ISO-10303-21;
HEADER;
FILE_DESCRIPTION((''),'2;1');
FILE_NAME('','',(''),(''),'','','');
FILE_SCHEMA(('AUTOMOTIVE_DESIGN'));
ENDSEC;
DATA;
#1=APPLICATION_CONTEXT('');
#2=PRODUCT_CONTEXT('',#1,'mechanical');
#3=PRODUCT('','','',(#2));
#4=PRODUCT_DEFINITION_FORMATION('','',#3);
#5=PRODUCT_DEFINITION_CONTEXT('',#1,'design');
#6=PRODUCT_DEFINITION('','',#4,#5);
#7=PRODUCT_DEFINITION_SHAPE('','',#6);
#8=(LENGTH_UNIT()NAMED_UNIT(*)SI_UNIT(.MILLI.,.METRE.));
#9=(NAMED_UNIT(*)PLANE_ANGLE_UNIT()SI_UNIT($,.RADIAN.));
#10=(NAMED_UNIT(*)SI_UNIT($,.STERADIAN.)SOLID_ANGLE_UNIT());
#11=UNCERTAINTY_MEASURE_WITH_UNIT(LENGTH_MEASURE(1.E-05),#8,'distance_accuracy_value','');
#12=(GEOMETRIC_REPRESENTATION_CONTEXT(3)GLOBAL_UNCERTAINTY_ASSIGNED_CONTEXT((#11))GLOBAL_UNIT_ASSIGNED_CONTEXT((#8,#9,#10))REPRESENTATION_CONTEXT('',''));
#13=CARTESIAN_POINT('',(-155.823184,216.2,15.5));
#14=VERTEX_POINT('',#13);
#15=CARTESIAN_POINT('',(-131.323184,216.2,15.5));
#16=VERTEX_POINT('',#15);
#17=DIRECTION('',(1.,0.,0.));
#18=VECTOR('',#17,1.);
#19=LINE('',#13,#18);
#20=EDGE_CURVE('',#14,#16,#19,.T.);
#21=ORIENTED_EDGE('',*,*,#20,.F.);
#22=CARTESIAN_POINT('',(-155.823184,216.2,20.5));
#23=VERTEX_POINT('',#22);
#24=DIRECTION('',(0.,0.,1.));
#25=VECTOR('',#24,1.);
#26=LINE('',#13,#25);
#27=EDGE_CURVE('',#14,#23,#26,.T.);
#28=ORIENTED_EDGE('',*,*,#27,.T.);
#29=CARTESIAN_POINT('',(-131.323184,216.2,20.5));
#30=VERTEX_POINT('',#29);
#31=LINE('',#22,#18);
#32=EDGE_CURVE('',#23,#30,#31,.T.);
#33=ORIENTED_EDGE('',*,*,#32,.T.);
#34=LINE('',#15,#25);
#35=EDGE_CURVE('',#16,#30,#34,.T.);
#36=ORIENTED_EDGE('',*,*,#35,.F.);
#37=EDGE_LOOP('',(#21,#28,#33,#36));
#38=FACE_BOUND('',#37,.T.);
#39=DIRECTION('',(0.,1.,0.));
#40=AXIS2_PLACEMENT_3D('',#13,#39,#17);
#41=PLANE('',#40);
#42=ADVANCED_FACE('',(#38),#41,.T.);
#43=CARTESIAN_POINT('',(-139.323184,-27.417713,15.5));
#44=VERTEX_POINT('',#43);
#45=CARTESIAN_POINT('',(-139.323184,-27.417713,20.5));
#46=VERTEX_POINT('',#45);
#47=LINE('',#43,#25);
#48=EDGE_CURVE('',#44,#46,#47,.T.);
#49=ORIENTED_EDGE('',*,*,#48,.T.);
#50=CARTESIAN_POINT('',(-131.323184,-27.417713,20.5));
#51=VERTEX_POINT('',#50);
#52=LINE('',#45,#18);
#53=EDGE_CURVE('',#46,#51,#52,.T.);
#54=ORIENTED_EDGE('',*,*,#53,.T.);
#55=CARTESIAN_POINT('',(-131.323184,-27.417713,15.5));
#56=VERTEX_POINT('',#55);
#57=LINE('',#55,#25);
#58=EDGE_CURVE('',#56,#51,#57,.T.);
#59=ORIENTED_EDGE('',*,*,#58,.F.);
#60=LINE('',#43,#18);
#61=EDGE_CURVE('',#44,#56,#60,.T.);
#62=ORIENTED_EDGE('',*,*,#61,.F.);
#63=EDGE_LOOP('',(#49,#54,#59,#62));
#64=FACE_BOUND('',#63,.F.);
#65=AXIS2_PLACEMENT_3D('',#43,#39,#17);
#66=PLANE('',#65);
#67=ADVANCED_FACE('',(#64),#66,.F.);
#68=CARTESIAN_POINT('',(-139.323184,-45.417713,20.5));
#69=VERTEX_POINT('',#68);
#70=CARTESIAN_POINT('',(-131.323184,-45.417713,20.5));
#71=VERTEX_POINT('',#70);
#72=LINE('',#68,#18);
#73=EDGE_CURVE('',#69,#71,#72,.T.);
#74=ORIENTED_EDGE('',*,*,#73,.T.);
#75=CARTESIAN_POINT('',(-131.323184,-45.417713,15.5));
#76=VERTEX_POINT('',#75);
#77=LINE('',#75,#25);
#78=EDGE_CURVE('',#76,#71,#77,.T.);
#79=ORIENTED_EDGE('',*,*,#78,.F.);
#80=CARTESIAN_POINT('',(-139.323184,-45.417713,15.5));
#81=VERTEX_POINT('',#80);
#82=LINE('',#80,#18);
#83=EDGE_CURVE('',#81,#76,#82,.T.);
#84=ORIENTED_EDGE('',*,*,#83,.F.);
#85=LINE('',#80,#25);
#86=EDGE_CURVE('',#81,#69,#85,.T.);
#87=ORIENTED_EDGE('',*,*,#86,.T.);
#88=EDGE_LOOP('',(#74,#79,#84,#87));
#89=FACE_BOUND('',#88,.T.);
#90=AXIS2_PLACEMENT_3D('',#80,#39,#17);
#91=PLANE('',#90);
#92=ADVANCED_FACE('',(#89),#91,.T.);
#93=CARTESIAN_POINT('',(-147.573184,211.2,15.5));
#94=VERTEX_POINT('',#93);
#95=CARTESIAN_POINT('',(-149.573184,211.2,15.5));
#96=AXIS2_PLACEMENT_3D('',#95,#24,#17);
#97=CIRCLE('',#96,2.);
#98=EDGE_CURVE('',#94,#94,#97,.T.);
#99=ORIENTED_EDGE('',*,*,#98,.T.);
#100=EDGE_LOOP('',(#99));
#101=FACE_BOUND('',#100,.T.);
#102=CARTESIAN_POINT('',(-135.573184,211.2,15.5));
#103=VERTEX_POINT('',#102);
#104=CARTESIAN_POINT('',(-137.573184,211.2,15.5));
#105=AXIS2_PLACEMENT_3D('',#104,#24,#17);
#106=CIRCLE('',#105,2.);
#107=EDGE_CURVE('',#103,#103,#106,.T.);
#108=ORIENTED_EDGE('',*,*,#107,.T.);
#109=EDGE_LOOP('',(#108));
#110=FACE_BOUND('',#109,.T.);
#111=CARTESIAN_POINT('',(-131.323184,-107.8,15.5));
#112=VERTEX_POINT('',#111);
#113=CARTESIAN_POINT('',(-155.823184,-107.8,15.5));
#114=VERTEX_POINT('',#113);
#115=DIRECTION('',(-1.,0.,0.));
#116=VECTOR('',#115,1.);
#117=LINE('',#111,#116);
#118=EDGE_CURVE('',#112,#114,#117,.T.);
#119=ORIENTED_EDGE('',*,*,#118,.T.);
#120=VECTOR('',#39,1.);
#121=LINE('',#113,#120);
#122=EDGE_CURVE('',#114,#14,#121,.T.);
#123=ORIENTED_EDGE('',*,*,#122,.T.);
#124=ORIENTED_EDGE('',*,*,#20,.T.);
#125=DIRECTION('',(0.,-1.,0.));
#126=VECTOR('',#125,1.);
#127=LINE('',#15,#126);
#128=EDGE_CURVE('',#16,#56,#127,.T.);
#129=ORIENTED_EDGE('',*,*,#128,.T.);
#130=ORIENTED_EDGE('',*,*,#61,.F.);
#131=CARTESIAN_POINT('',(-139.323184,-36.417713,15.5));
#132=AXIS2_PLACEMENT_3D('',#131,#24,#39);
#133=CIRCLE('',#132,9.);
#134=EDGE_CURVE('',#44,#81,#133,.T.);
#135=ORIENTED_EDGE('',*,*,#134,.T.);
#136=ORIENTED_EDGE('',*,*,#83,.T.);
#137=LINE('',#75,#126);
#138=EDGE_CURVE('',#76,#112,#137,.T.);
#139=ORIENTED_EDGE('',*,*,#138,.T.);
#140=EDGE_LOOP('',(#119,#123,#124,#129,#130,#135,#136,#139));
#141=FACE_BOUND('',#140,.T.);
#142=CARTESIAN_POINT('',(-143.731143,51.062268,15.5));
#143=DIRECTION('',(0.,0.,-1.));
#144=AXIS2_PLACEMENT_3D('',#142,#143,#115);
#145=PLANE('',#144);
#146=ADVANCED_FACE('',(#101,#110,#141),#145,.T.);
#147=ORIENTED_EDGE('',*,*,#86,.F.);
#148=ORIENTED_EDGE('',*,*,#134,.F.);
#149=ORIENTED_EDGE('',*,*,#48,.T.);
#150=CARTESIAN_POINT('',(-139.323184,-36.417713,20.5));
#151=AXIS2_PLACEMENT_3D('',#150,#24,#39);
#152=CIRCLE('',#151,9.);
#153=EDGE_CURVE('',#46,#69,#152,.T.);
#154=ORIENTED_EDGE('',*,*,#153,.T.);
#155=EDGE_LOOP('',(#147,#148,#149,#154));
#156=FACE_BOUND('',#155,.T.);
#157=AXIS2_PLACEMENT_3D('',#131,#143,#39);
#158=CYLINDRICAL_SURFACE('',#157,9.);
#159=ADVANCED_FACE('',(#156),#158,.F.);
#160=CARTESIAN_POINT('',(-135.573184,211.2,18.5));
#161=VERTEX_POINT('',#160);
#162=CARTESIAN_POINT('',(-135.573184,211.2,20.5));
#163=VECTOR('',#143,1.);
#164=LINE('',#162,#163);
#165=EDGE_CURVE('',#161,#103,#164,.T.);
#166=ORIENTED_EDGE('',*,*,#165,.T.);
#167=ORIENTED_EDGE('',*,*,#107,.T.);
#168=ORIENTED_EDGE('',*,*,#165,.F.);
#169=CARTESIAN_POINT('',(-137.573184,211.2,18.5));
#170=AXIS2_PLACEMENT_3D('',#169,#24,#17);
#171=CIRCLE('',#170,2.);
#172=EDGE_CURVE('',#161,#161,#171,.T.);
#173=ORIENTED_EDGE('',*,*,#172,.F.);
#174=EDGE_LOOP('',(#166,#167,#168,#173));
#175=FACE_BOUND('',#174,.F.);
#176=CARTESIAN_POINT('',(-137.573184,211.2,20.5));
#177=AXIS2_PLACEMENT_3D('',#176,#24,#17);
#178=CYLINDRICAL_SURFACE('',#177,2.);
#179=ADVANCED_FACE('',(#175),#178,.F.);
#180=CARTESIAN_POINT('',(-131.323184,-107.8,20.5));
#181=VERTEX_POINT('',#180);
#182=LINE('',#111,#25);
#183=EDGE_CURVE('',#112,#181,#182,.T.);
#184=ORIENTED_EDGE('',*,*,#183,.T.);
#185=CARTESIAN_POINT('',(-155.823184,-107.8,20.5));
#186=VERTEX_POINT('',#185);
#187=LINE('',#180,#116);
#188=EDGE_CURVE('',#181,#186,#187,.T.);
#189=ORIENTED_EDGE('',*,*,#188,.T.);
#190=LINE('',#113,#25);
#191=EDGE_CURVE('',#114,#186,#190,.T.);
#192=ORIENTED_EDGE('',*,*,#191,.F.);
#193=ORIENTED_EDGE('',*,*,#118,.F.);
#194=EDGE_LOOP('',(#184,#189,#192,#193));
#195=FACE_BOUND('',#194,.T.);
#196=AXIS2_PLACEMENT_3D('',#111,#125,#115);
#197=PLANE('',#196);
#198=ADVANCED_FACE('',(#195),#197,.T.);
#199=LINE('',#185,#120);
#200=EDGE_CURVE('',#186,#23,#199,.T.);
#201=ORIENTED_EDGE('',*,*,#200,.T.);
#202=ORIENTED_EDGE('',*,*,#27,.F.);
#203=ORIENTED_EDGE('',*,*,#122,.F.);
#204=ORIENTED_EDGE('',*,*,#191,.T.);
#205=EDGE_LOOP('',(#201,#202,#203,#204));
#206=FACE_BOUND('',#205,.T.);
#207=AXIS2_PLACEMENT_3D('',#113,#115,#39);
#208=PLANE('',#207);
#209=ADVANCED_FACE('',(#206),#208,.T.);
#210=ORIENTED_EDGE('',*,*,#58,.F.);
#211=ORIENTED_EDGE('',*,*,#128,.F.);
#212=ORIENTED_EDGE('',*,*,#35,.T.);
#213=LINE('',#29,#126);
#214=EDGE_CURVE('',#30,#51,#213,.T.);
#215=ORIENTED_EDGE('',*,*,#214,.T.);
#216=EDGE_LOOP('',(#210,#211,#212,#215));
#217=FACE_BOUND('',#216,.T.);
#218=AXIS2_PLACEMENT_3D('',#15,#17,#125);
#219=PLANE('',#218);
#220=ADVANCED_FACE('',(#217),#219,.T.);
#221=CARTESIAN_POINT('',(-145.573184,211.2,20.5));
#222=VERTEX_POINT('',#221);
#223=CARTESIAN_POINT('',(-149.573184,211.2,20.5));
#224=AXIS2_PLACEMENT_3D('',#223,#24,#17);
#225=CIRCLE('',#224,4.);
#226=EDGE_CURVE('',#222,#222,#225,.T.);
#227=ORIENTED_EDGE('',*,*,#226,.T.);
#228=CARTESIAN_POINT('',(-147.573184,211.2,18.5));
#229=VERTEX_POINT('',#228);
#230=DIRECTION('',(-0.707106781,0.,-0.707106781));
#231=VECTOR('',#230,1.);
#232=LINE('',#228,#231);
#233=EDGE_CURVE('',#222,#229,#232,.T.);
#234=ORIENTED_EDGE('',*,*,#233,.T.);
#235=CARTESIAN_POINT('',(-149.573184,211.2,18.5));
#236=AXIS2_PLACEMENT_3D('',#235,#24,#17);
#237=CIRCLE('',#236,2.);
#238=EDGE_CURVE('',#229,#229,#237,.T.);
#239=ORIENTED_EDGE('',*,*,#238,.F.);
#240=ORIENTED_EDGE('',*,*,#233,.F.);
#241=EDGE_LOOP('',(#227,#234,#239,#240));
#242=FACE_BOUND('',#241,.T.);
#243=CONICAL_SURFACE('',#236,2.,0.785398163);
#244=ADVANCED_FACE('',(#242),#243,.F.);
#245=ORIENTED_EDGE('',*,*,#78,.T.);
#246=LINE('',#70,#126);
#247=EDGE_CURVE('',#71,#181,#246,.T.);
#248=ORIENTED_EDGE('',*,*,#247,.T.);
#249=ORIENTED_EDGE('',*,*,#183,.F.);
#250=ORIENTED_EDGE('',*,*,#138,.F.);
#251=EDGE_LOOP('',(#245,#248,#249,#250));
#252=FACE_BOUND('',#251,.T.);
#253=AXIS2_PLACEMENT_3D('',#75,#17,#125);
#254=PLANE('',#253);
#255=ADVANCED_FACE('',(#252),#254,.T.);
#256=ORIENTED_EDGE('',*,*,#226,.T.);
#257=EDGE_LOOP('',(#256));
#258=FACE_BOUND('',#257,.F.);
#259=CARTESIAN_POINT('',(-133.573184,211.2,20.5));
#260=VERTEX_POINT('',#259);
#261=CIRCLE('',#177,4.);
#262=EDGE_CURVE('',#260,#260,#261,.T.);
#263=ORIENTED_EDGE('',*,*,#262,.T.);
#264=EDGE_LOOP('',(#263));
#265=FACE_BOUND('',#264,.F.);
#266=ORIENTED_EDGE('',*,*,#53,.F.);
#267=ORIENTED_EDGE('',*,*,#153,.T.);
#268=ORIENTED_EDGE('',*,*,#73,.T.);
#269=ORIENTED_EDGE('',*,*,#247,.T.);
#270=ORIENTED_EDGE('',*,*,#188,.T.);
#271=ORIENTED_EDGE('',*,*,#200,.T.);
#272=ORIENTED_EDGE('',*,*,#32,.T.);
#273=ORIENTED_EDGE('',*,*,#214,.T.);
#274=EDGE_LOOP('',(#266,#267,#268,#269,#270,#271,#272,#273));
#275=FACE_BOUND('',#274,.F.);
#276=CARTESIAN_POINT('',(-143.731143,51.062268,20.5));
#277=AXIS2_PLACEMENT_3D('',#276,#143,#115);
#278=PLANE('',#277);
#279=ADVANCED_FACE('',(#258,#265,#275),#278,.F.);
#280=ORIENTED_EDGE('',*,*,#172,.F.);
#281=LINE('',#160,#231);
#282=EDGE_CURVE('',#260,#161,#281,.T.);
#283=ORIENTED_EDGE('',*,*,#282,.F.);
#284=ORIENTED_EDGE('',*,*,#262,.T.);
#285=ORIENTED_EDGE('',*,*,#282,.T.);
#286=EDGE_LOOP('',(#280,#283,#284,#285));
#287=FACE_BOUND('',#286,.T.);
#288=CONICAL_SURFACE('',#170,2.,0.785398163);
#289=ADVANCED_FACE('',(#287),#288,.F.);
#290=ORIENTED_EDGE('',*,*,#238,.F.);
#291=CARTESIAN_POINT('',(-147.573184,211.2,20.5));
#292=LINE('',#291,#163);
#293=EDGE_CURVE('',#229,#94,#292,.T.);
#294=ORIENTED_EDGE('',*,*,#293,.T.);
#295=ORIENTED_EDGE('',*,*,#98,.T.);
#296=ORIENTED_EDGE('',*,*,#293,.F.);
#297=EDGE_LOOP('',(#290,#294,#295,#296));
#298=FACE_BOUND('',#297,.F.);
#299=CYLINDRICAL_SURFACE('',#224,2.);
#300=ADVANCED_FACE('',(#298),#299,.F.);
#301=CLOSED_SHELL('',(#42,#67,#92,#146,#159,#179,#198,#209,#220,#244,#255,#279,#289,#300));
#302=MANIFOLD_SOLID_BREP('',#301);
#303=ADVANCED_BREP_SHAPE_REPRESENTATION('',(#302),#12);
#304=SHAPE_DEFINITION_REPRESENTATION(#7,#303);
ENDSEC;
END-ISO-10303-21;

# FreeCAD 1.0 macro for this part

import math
import FreeCAD as App
import Part
import Sketcher
Q = App.Units.Quantity


def edges_at(feature, points):
    """Names of the edges that pass closest to the given points."""
    edges = feature.Shape.Edges
    near = lambda p: min(range(len(edges)), key=lambda i: edges[i].distToShape(Part.Vertex(*p))[0])
    return sorted({f"Edge{near(p) + 1}" for p in points})

doc = App.newDocument("Part")
body = doc.addObject("PartDesign::Body", "Body")

sketch1 = doc.addObject("Sketcher::SketchObject", "Sketch")
body.addObject(sketch1)
sketch1.AttachmentSupport = (doc.XY_Plane, [""])
sketch1.MapMode = "FlatFace"
sketch1.addGeometry([
    Part.LineSegment(App.Vector(-81, -108, 0), App.Vector(-81, -45, 0)),
    Part.LineSegment(App.Vector(-81, -45, 0), App.Vector(-89, -45, 0)),
    Part.ArcOfCircle(Part.Circle(App.Vector(-89, -36, 0), App.Vector(0, 0, 1), 9), math.radians(90), math.radians(270)),
    Part.LineSegment(App.Vector(-89, -27, 0), App.Vector(-81, -27, 0)),
    Part.LineSegment(App.Vector(-81, -27, 0), App.Vector(-81, 216, 0)),
    Part.LineSegment(App.Vector(-81, 216, 0), App.Vector(-106, 216, 0)),
    Part.LineSegment(App.Vector(-106, 216, 0), App.Vector(-106, -108, 0)),
    Part.LineSegment(App.Vector(-106, -108, 0), App.Vector(-81, -108, 0)),
], False)
sketch1.addConstraint([
    Sketcher.Constraint("Coincident", 0, 2, 1, 1),
    Sketcher.Constraint("Tangent", 1, 2, 2, 2),
    Sketcher.Constraint("Tangent", 2, 1, 3, 1),
    Sketcher.Constraint("Coincident", 3, 2, 4, 1),
    Sketcher.Constraint("Coincident", 4, 2, 5, 1),
    Sketcher.Constraint("Coincident", 5, 2, 6, 1),
    Sketcher.Constraint("Coincident", 6, 2, 7, 1),
    Sketcher.Constraint("Coincident", 7, 2, 0, 1),
    Sketcher.Constraint("Vertical", 0),
    Sketcher.Constraint("Horizontal", 1),
    Sketcher.Constraint("Horizontal", 3),
    Sketcher.Constraint("Vertical", 4),
    Sketcher.Constraint("Horizontal", 5),
    Sketcher.Constraint("Vertical", 6),
    Sketcher.Constraint("Horizontal", 7),
    Sketcher.Constraint("Vertical", 0, 2, 3, 2),
    Sketcher.Constraint("Radius", 2, Q("9 mm")),
    Sketcher.Constraint("DistanceX", 1, 2, 1, 1, Q("8 mm")),
    Sketcher.Constraint("DistanceY", 6, 2, 6, 1, Q("324 mm")),
    Sketcher.Constraint("DistanceX", 5, 2, 5, 1, Q("24.5 mm")),
    Sketcher.Constraint("DistanceY", -1, 1, 4, 2, Q("216.2 mm")),
    Sketcher.Constraint("DistanceY", 0, 1, 0, 2, Q("62.382287 mm")),
    Sketcher.Constraint("DistanceX", 2, 3, -1, 1, Q("89.323184 mm")),
])
pad1 = doc.addObject("PartDesign::Pad", "Pad")
body.addObject(pad1)
pad1.Profile = sketch1
pad1.Length = 5

sketch2 = doc.addObject("Sketcher::SketchObject", "Sketch001")
body.addObject(sketch2)
sketch2.AttachmentSupport = (doc.XY_Plane, [""])
sketch2.MapMode = "FlatFace"
sketch2.AttachmentOffset = App.Placement(App.Vector(0, 0, 5), App.Rotation())
sketch2.addGeometry([
    Part.Circle(App.Vector(-99.6, 211.2, 0), App.Vector(0, 0, 1), 2),
    Part.Circle(App.Vector(-87.6, 211.2, 0), App.Vector(0, 0, 1), 2),
], False)
sketch2.addConstraint([
    Sketcher.Constraint("Equal", 0, 1),
    Sketcher.Constraint("Horizontal", 0, 3, 1, 3),
    Sketcher.Constraint("Diameter", 0, Q("4 mm")),
    Sketcher.Constraint("DistanceX", 0, 3, 1, 3, Q("12 mm")),
    Sketcher.Constraint("DistanceY", -1, 1, 0, 3, Q("211.2 mm")),
    Sketcher.Constraint("DistanceX", 0, 3, -1, 1, Q("99.573184 mm")),
])
pocket1 = doc.addObject("PartDesign::Pocket", "Pocket")
body.addObject(pocket1)
pocket1.Profile = sketch2
pocket1.Type = "ThroughAll"
doc.recompute()

chamfer = doc.addObject("PartDesign::Chamfer", "Chamfer")
body.addObject(chamfer)
chamfer.Base = (pocket1, edges_at(pocket1, [(-89.573, 211.2, 5), (-101.573, 211.2, 5)]))
chamfer.Size = 2
body2 = doc.addObject("PartDesign::Body", "Body001")
doc.recompute()

body.Placement = App.Placement(App.Vector(-50, 0, 15.5), App.Rotation(App.Vector(0, 0, 1), 0))
boolean = doc.addObject("PartDesign::Boolean", "Boolean")
body2.addObject(boolean)
boolean.Type = "Fuse"
boolean.addObjects([body])

doc.recompute()
